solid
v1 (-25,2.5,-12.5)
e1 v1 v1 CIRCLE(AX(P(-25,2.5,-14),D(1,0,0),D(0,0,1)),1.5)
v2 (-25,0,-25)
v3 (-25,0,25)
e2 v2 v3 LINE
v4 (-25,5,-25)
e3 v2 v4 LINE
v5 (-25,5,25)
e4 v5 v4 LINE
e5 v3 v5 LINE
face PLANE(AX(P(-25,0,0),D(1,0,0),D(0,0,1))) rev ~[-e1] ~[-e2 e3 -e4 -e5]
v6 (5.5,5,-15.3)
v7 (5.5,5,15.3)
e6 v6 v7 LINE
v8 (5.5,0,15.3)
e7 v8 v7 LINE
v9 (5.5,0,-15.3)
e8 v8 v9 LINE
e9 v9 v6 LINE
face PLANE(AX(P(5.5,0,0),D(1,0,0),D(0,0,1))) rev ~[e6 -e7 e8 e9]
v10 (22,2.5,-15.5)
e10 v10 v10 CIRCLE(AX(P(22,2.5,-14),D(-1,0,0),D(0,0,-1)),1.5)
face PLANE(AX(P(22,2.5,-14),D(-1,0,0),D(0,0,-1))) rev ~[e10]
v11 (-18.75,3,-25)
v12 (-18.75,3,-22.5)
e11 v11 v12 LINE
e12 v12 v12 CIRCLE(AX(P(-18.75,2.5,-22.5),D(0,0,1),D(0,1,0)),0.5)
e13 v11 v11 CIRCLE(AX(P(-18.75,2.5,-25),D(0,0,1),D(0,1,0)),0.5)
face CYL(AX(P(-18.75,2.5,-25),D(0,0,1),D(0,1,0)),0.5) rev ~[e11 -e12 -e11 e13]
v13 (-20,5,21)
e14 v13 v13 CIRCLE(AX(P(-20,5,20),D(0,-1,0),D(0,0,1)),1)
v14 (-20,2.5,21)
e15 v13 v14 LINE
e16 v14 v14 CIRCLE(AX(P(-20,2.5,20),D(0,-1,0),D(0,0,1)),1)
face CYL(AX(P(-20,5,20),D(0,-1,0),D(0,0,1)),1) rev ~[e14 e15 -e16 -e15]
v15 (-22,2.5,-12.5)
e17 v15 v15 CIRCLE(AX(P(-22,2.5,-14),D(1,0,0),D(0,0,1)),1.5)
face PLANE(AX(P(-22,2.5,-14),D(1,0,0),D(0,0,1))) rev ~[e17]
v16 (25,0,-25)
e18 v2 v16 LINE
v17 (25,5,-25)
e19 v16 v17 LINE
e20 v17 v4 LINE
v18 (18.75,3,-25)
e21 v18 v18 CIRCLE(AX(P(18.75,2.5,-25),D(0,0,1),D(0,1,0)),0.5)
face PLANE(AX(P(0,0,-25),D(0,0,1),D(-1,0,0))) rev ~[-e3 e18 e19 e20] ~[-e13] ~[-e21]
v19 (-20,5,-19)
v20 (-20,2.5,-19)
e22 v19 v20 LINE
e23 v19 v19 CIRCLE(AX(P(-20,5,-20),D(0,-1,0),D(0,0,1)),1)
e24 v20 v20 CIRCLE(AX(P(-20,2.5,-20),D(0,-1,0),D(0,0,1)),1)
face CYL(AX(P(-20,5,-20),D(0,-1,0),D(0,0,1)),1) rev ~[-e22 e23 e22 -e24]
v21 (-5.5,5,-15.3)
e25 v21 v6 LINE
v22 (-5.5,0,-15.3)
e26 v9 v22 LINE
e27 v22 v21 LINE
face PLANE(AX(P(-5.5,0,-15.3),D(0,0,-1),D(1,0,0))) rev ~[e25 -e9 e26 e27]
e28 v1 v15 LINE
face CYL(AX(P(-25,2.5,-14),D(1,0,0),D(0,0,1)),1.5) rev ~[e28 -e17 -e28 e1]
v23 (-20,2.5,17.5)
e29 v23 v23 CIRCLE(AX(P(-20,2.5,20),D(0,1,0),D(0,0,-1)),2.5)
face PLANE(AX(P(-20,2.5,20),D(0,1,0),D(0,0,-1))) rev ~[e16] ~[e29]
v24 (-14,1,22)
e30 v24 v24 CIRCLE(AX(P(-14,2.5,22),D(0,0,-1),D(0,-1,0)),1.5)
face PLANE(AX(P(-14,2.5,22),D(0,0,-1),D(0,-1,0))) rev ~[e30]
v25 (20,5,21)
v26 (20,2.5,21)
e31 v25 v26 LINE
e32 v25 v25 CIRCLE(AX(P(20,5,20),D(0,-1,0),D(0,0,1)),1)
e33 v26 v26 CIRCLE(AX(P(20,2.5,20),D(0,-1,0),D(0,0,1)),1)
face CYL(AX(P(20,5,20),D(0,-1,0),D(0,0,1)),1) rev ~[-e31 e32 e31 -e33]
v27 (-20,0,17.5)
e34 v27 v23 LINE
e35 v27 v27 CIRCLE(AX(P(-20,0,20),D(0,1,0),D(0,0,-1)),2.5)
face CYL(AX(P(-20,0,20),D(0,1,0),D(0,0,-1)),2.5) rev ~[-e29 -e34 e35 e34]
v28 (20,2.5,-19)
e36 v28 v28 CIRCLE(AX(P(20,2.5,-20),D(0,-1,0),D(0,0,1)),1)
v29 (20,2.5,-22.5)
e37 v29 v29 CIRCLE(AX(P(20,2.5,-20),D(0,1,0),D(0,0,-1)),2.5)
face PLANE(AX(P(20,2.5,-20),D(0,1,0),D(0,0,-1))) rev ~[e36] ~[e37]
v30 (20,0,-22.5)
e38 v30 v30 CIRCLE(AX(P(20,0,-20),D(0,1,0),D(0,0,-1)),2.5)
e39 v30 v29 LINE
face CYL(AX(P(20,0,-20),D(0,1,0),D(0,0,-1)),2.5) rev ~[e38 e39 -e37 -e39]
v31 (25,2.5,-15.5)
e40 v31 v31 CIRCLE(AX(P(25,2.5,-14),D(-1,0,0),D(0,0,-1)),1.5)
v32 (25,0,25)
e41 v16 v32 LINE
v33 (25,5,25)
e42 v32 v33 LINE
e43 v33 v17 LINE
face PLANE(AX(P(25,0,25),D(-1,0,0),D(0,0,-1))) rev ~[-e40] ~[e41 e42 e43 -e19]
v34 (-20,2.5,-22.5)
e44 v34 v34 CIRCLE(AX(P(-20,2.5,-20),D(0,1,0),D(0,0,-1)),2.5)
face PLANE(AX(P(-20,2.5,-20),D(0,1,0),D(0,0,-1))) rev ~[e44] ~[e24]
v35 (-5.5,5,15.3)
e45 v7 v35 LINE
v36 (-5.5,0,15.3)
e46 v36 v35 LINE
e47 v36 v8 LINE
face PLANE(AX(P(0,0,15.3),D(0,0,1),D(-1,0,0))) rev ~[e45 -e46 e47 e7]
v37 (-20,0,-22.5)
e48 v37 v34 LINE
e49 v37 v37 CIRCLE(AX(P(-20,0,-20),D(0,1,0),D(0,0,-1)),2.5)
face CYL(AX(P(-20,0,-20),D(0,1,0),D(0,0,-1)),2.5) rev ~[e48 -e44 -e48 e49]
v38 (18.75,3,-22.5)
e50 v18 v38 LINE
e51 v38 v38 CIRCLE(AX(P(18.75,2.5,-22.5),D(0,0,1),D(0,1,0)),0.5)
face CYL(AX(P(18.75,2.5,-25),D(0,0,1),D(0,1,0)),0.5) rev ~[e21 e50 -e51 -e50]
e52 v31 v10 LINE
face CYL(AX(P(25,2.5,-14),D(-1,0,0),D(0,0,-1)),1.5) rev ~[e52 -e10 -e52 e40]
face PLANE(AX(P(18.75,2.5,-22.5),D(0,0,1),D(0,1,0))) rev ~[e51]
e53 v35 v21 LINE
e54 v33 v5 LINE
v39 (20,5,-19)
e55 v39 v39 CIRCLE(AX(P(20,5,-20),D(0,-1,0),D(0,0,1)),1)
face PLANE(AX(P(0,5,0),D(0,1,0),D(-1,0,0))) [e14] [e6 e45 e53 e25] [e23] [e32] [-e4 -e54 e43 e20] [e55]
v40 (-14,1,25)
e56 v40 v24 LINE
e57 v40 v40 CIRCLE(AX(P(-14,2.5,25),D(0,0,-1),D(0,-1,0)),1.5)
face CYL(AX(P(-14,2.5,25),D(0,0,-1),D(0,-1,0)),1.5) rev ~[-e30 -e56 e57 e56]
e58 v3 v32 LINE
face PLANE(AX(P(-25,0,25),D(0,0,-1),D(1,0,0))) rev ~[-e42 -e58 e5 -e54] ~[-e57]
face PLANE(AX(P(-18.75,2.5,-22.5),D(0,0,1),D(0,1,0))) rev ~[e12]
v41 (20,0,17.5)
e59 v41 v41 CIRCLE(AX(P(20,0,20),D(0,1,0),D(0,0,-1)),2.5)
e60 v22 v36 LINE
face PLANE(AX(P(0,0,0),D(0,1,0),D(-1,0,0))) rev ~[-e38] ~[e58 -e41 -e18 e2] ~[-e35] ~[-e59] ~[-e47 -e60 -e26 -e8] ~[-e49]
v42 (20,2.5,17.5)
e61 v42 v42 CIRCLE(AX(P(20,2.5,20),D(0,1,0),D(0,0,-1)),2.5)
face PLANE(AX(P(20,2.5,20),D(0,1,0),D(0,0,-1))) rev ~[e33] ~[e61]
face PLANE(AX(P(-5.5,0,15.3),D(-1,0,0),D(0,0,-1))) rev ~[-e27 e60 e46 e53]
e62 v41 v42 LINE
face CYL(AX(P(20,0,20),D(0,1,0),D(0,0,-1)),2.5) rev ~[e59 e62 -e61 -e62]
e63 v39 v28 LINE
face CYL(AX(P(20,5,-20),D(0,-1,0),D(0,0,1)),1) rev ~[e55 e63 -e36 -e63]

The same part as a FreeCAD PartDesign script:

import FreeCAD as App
import Part
import Sketcher
Q = App.Units.Quantity

doc = App.newDocument("Part")
params = doc.addObject("Spreadsheet::Sheet", "Params")
for row, (alias, value) in enumerate([
    ("sketch1_width", "50 mm"),
    ("sketch1_width2", "11 mm"),
    ("sketch1_height", "30.6 mm"),
    ("pad1_length", "5 mm"),
    ("sketch2_diameter", "5 mm"),
    ("hole_diameter", "5 mm"),
    ("hole_depth", "2.5 mm"),
    ("sketch3_diameter", "2 mm"),
    ("hole2_diameter", "2 mm"),
    ("hole2_depth", "2.5 mm"),
    ("sketch4_diameter", "3 mm"),
    ("hole3_diameter", "3 mm"),
    ("hole3_depth", "3 mm"),
    ("sketch5_diameter", "3 mm"),
    ("hole4_diameter", "3 mm"),
    ("hole4_depth", "3 mm"),
    ("sketch6_diameter", "3 mm"),
    ("hole5_diameter", "3 mm"),
    ("hole5_depth", "3 mm"),
    ("sketch7_diameter", "1 mm"),
    ("hole6_diameter", "1 mm"),
    ("hole6_depth", "2.5 mm"),
], start=1):
    params.set(f"A{row}", alias)
    params.set(f"B{row}", "=" + value)
    params.setAlias(f"B{row}", alias)

body = doc.addObject("PartDesign::Body", "Body")

sketch1 = doc.addObject("Sketcher::SketchObject", "Sketch")
body.addObject(sketch1)
sketch1.AttachmentSupport = (doc.XZ_Plane, [""])
sketch1.MapMode = "FlatFace"
sketch1.addGeometry([
    Part.LineSegment(App.Vector(-25, 25, 0), App.Vector(25, 25, 0)),
    Part.LineSegment(App.Vector(25, 25, 0), App.Vector(25, -25, 0)),
    Part.LineSegment(App.Vector(25, -25, 0), App.Vector(-25, -25, 0)),
    Part.LineSegment(App.Vector(-25, -25, 0), App.Vector(-25, 25, 0)),
    Part.LineSegment(App.Vector(-6, 15, 0), App.Vector(-6, -15, 0)),
    Part.LineSegment(App.Vector(-6, -15, 0), App.Vector(6, -15, 0)),
    Part.LineSegment(App.Vector(6, -15, 0), App.Vector(6, 15, 0)),
    Part.LineSegment(App.Vector(6, 15, 0), App.Vector(-6, 15, 0)),
], False)
sketch1.addConstraint([
    Sketcher.Constraint("Coincident", 0, 2, 1, 1),
    Sketcher.Constraint("Coincident", 1, 2, 2, 1),
    Sketcher.Constraint("Coincident", 2, 2, 3, 1),
    Sketcher.Constraint("Coincident", 3, 2, 0, 1),
    Sketcher.Constraint("Coincident", 4, 2, 5, 1),
    Sketcher.Constraint("Coincident", 5, 2, 6, 1),
    Sketcher.Constraint("Coincident", 6, 2, 7, 1),
    Sketcher.Constraint("Coincident", 7, 2, 4, 1),
    Sketcher.Constraint("Horizontal", 0),
    Sketcher.Constraint("Vertical", 1),
    Sketcher.Constraint("Horizontal", 2),
    Sketcher.Constraint("Vertical", 3),
    Sketcher.Constraint("Vertical", 4),
    Sketcher.Constraint("Horizontal", 5),
    Sketcher.Constraint("Vertical", 6),
    Sketcher.Constraint("Horizontal", 7),
    Sketcher.Constraint("Symmetric", 0, 2, 2, 2, -1, 1),
    Sketcher.Constraint("Symmetric", 4, 2, 6, 2, -1, 1),
    Sketcher.Constraint("Equal", 2, 1),
    Sketcher.Constraint("DistanceX", 0, 1, 0, 2, Q("50 mm")),
    Sketcher.Constraint("DistanceX", 5, 1, 5, 2, Q("11 mm")),
    Sketcher.Constraint("DistanceY", 4, 2, 4, 1, Q("30.6 mm")),
])
sketch1.setExpression("Constraints[19]", "Params.sketch1_width")
sketch1.setExpression("Constraints[20]", "Params.sketch1_width2")
sketch1.setExpression("Constraints[21]", "Params.sketch1_height")
pad1 = doc.addObject("PartDesign::Pad", "Pad")
body.addObject(pad1)
pad1.Profile = sketch1
pad1.setExpression("Length", "Params.pad1_length")
pad1.Reversed = True

sketch2 = doc.addObject("Sketcher::SketchObject", "Sketch001")
body.addObject(sketch2)
sketch2.AttachmentSupport = (doc.XZ_Plane, [""])
sketch2.MapMode = "FlatFace"
sketch2.addGeometry([
    Part.Circle(App.Vector(20, -20, 0), App.Vector(0, 0, 1), 2.5),
    Part.Circle(App.Vector(-20, -20, 0), App.Vector(0, 0, 1), 2.5),
    Part.Circle(App.Vector(-20, 20, 0), App.Vector(0, 0, 1), 2.5),
    Part.Circle(App.Vector(20, 20, 0), App.Vector(0, 0, 1), 2.5),
], False)
sketch2.addConstraint([
    Sketcher.Constraint("Equal", 0, 1),
    Sketcher.Constraint("Equal", 1, 2),
    Sketcher.Constraint("Equal", 2, 3),
    Sketcher.Constraint("Symmetric", 0, 3, 2, 3, -1, 1),
    Sketcher.Constraint("Symmetric", 1, 3, 3, 3, -1, 1),
    Sketcher.Constraint("Symmetric", 0, 3, 1, 3, -2),
    Sketcher.Constraint("Diameter", 0, Q("5 mm")),
    Sketcher.Constraint("DistanceX", -1, 1, 0, 3, Q("20 mm")),
    Sketcher.Constraint("DistanceY", 0, 3, -1, 1, Q("20 mm")),
])
sketch2.setExpression("Constraints[6]", "Params.sketch2_diameter")
doc.recompute()
hole = doc.addObject("PartDesign::Hole", "Hole")
body.addObject(hole)
hole.Profile = sketch2
hole.ThreadType = "None"
hole.setExpression("Diameter", "Params.hole_diameter")
hole.DepthType = "Dimension"
hole.setExpression("Depth", "Params.hole_depth")
hole.DrillPoint = "Flat"

sketch3 = doc.addObject("Sketcher::SketchObject", "Sketch002")
body.addObject(sketch3)
sketch3.AttachmentSupport = (doc.XZ_Plane, [""])
sketch3.MapMode = "FlatFace"
sketch3.AttachmentOffset = App.Placement(App.Vector(0, 0, -5), App.Rotation())
sketch3.addGeometry([
    Part.Circle(App.Vector(-20, -20, 0), App.Vector(0, 0, 1), 1),
    Part.Circle(App.Vector(20, -20, 0), App.Vector(0, 0, 1), 1),
    Part.Circle(App.Vector(20, 20, 0), App.Vector(0, 0, 1), 1),
    Part.Circle(App.Vector(-20, 20, 0), App.Vector(0, 0, 1), 1),
], False)
sketch3.addConstraint([
    Sketcher.Constraint("Equal", 0, 1),
    Sketcher.Constraint("Equal", 1, 2),
    Sketcher.Constraint("Equal", 2, 3),
    Sketcher.Constraint("Symmetric", 0, 3, 2, 3, -1, 1),
    Sketcher.Constraint("Symmetric", 1, 3, 3, 3, -1, 1),
    Sketcher.Constraint("Symmetric", 0, 3, 1, 3, -2),
    Sketcher.Constraint("Diameter", 0, Q("2 mm")),
    Sketcher.Constraint("DistanceX", 0, 3, -1, 1, Q("20 mm")),
    Sketcher.Constraint("DistanceY", 0, 3, -1, 1, Q("20 mm")),
])
sketch3.setExpression("Constraints[6]", "Params.sketch3_diameter")
doc.recompute()
hole2 = doc.addObject("PartDesign::Hole", "Hole001")
body.addObject(hole2)
hole2.Profile = sketch3
hole2.ThreadType = "None"
hole2.setExpression("Diameter", "Params.hole2_diameter")
hole2.DepthType = "Dimension"
hole2.setExpression("Depth", "Params.hole2_depth")
hole2.DrillPoint = "Flat"
hole2.Reversed = True

sketch4 = doc.addObject("Sketcher::SketchObject", "Sketch003")
body.addObject(sketch4)
sketch4.AttachmentSupport = (doc.XY_Plane, [""])
sketch4.MapMode = "FlatFace"
sketch4.AttachmentOffset = App.Placement(App.Vector(0, 0, 25), App.Rotation())
sketch4.addGeometry(Part.Circle(App.Vector(-14, 2.5, 0), App.Vector(0, 0, 1), 1.5), False)
sketch4.addConstraint([
    Sketcher.Constraint("Diameter", 0, Q("3 mm")),
    Sketcher.Constraint("DistanceX", 0, 3, -1, 1, Q("14 mm")),
    Sketcher.Constraint("DistanceY", -1, 1, 0, 3, Q("2.5 mm")),
])
sketch4.setExpression("Constraints[0]", "Params.sketch4_diameter")
doc.recompute()
hole3 = doc.addObject("PartDesign::Hole", "Hole002")
body.addObject(hole3)
hole3.Profile = sketch4
hole3.ThreadType = "None"
hole3.setExpression("Diameter", "Params.hole3_diameter")
hole3.DepthType = "Dimension"
hole3.setExpression("Depth", "Params.hole3_depth")
hole3.DrillPoint = "Flat"

sketch5 = doc.addObject("Sketcher::SketchObject", "Sketch004")
body.addObject(sketch5)
sketch5.AttachmentSupport = (doc.YZ_Plane, [""])
sketch5.MapMode = "FlatFace"
sketch5.AttachmentOffset = App.Placement(App.Vector(0, 0, -25), App.Rotation())
sketch5.addGeometry(Part.Circle(App.Vector(2.5, -14, 0), App.Vector(0, 0, 1), 1.5), False)
sketch5.addConstraint([
    Sketcher.Constraint("Diameter", 0, Q("3 mm")),
    Sketcher.Constraint("DistanceY", 0, 3, -1, 1, Q("14 mm")),
    Sketcher.Constraint("DistanceX", -1, 1, 0, 3, Q("2.5 mm")),
])
sketch5.setExpression("Constraints[0]", "Params.sketch5_diameter")
doc.recompute()
hole4 = doc.addObject("PartDesign::Hole", "Hole003")
body.addObject(hole4)
hole4.Profile = sketch5
hole4.ThreadType = "None"
hole4.setExpression("Diameter", "Params.hole4_diameter")
hole4.DepthType = "Dimension"
hole4.setExpression("Depth", "Params.hole4_depth")
hole4.DrillPoint = "Flat"
hole4.Reversed = True

sketch6 = doc.addObject("Sketcher::SketchObject", "Sketch005")
body.addObject(sketch6)
sketch6.AttachmentSupport = (doc.YZ_Plane, [""])
sketch6.MapMode = "FlatFace"
sketch6.AttachmentOffset = App.Placement(App.Vector(0, 0, 25), App.Rotation())
sketch6.addGeometry(Part.Circle(App.Vector(2.5, -14, 0), App.Vector(0, 0, 1), 1.5), False)
sketch6.addConstraint([
    Sketcher.Constraint("Diameter", 0, Q("3 mm")),
    Sketcher.Constraint("DistanceY", 0, 3, -1, 1, Q("14 mm")),
    Sketcher.Constraint("DistanceX", -1, 1, 0, 3, Q("2.5 mm")),
])
sketch6.setExpression("Constraints[0]", "Params.sketch6_diameter")
doc.recompute()
hole5 = doc.addObject("PartDesign::Hole", "Hole004")
body.addObject(hole5)
hole5.Profile = sketch6
hole5.ThreadType = "None"
hole5.setExpression("Diameter", "Params.hole5_diameter")
hole5.DepthType = "Dimension"
hole5.setExpression("Depth", "Params.hole5_depth")
hole5.DrillPoint = "Flat"

sketch7 = doc.addObject("Sketcher::SketchObject", "Sketch006")
body.addObject(sketch7)
sketch7.AttachmentSupport = (doc.XY_Plane, [""])
sketch7.MapMode = "FlatFace"
sketch7.AttachmentOffset = App.Placement(App.Vector(0, 0, -25), App.Rotation())
sketch7.addGeometry([
    Part.Circle(App.Vector(18.8, 2.5, 0), App.Vector(0, 0, 1), 0.5),
    Part.Circle(App.Vector(-18.8, 2.5, 0), App.Vector(0, 0, 1), 0.5),
], False)
sketch7.addConstraint([
    Sketcher.Constraint("Equal", 0, 1),
    Sketcher.Constraint("Symmetric", 0, 3, 1, 3, -2),
    Sketcher.Constraint("Diameter", 0, Q("1 mm")),
    Sketcher.Constraint("DistanceY", -1, 1, 0, 3, Q("2.5 mm")),
    Sketcher.Constraint("DistanceX", 1, 3, 0, 3, Q("37.5 mm")),
])
sketch7.setExpression("Constraints[2]", "Params.sketch7_diameter")
doc.recompute()
hole6 = doc.addObject("PartDesign::Hole", "Hole005")
body.addObject(hole6)
hole6.Profile = sketch7
hole6.ThreadType = "None"
hole6.setExpression("Diameter", "Params.hole6_diameter")
hole6.DepthType = "Dimension"
hole6.setExpression("Depth", "Params.hole6_depth")
hole6.DrillPoint = "Flat"
hole6.Reversed = True

doc.recompute()
